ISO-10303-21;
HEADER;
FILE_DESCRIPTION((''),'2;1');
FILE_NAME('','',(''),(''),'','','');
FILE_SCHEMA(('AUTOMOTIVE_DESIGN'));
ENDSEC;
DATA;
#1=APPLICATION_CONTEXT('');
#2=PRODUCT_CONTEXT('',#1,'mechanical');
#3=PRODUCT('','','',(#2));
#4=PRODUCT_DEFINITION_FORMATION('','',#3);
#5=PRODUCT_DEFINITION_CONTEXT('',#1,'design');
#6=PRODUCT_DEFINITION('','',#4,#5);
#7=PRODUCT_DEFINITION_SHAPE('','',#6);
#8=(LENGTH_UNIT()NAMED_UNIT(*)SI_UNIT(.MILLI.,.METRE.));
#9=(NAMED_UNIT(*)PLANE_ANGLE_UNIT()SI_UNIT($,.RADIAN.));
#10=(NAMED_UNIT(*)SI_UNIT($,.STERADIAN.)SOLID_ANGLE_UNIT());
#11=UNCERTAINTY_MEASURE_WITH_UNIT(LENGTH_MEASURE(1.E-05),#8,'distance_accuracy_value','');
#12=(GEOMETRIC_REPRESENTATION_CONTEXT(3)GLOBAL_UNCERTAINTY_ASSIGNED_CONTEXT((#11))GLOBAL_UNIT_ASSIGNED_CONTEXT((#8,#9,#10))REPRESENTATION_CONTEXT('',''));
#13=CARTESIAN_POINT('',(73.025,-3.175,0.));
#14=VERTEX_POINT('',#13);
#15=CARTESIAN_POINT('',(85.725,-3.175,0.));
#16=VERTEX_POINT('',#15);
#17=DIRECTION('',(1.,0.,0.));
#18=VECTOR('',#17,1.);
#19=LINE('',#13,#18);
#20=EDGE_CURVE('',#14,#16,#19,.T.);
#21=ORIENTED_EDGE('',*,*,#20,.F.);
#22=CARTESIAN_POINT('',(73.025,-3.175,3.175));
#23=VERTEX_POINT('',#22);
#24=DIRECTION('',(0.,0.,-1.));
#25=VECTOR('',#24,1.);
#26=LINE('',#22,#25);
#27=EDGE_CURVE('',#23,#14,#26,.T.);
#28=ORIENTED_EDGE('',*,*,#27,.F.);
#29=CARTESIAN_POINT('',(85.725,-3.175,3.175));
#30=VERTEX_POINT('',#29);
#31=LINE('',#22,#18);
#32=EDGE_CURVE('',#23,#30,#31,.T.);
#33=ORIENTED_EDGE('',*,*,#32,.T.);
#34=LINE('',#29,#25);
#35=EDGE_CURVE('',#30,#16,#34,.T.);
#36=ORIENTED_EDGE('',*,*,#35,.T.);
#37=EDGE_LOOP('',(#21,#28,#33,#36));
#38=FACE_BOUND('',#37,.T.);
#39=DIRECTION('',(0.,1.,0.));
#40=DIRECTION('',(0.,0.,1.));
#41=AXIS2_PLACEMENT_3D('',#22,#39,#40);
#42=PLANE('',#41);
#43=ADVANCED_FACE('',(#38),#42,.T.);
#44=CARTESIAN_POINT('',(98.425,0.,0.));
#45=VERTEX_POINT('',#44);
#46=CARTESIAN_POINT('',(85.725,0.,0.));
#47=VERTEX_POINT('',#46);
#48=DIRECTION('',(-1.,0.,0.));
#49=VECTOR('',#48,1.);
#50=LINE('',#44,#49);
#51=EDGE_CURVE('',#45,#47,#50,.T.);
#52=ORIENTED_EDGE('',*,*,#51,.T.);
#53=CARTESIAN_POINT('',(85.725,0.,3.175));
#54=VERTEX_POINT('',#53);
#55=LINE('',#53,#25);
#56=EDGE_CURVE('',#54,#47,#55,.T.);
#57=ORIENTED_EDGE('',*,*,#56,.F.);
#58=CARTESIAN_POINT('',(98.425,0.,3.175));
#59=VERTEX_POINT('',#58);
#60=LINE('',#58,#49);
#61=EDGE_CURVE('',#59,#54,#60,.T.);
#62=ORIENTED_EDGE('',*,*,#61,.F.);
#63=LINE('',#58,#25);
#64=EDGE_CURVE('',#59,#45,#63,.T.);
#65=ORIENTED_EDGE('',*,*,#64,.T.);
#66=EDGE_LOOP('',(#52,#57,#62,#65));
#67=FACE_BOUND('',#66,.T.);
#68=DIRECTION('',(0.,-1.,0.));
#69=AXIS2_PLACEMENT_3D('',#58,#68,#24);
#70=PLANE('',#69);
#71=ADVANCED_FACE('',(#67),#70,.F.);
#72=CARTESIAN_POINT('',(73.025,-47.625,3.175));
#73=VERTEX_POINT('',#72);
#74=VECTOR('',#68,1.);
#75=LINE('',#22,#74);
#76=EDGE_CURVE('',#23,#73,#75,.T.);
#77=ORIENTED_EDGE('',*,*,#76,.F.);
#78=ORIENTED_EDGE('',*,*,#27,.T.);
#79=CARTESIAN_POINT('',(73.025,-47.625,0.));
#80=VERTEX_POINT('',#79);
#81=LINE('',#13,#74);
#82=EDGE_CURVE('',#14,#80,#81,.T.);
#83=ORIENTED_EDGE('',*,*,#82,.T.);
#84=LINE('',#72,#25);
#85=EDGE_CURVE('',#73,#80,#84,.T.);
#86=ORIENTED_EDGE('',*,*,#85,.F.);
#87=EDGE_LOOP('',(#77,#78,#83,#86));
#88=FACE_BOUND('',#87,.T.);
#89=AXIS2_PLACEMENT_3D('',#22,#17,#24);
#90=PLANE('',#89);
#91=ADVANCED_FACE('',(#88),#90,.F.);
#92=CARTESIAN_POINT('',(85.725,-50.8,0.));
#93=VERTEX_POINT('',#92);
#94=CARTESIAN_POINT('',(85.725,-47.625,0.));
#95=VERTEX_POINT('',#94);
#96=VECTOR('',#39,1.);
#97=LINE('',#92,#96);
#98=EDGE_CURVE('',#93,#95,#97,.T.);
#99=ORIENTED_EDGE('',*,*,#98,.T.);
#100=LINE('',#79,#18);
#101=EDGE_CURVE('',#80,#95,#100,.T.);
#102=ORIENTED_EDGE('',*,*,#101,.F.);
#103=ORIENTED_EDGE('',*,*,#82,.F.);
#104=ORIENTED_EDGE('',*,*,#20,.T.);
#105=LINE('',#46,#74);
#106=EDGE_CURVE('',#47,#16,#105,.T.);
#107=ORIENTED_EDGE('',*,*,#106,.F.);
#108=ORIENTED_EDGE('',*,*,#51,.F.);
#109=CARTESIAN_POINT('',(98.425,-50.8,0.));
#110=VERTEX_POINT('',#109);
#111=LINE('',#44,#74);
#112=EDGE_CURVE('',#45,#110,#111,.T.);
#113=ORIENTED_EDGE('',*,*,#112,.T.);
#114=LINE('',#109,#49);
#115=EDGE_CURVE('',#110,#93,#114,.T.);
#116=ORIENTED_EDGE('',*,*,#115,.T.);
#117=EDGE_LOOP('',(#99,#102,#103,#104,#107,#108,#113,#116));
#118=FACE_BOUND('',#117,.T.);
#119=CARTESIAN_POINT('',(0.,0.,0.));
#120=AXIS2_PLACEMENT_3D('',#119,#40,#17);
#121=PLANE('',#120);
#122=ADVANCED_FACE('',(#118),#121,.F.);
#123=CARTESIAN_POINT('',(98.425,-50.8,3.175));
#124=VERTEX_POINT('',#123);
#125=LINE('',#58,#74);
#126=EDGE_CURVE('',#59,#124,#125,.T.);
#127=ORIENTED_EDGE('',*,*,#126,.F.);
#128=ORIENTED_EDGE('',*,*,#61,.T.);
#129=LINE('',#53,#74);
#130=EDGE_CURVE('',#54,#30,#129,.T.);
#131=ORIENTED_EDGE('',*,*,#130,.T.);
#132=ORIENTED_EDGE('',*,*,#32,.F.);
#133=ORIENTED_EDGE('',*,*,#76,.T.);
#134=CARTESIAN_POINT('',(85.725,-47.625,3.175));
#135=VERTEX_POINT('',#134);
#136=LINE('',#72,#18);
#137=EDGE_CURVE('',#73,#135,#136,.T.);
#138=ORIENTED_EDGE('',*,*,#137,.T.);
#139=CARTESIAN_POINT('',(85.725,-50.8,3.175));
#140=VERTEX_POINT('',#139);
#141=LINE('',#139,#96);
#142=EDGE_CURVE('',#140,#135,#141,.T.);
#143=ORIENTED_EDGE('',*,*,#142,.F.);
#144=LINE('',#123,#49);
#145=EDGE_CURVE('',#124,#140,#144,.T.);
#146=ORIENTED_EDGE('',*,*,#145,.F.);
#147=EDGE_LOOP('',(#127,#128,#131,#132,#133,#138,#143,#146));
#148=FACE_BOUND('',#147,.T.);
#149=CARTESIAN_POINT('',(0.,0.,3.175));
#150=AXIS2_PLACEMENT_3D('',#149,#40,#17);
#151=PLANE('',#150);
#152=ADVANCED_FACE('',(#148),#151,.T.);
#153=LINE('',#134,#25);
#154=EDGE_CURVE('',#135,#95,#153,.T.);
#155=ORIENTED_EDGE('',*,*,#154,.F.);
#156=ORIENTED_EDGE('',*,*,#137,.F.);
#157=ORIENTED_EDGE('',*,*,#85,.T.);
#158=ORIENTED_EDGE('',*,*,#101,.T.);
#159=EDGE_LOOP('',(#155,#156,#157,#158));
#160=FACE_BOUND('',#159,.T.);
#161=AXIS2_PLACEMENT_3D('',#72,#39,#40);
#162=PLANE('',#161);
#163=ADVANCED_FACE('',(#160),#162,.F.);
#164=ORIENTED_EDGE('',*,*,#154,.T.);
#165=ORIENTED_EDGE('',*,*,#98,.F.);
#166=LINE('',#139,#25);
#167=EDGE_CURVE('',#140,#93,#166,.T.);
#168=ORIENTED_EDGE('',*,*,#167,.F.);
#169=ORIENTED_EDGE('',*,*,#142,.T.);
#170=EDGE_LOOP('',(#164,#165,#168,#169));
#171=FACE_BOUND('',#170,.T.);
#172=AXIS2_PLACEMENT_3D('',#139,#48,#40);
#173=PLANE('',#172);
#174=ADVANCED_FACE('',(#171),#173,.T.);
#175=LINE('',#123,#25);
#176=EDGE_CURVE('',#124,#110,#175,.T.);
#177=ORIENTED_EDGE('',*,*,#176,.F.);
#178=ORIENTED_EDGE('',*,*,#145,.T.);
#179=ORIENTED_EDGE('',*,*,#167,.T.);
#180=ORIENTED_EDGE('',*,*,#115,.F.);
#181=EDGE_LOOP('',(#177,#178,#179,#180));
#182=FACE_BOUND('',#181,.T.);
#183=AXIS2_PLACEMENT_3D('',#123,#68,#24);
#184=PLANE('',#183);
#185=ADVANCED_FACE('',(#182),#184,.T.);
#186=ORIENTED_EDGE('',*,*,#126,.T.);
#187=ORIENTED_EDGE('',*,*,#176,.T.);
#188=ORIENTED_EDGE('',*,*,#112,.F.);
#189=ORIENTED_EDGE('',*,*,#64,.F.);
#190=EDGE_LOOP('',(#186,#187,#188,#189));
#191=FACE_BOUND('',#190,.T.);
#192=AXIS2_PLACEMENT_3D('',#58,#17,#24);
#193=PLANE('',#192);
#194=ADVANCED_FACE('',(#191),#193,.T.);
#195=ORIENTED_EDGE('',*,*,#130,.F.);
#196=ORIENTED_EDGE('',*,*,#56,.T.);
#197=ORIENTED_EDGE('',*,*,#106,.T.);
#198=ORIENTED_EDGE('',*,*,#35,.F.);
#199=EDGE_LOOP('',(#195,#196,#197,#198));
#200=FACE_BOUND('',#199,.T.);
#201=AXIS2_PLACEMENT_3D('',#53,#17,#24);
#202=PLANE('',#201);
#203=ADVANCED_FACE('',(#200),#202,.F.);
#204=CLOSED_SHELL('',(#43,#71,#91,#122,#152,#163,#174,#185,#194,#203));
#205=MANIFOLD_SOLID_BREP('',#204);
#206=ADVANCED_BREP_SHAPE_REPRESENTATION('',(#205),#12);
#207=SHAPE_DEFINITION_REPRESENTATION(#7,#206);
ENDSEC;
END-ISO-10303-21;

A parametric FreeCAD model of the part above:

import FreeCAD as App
import Part
import Sketcher
Q = App.Units.Quantity

doc = App.newDocument("Part")
body = doc.addObject("PartDesign::Body", "Body")

# Sketch on XY plane
sketch1 = doc.addObject("Sketcher::SketchObject", "Sketch")
body.addObject(sketch1)
sketch1.AttachmentSupport = (doc.XY_Plane, [""])
sketch1.MapMode = "FlatFace"
sketch1.addGeometry(Part.LineSegment(App.Vector(98.4, 0, 0), App.Vector(85.7, 0, 0)), False)
sketch1.addGeometry(Part.LineSegment(App.Vector(85.7, 0, 0), App.Vector(85.7, -3.2, 0)), False)
sketch1.addGeometry(Part.LineSegment(App.Vector(85.7, -3.2, 0), App.Vector(73, -3.2, 0)), False)
sketch1.addGeometry(Part.LineSegment(App.Vector(73, -3.2, 0), App.Vector(73, -47.6, 0)), False)
sketch1.addGeometry(Part.LineSegment(App.Vector(73, -47.6, 0), App.Vector(85.7, -47.6, 0)), False)
sketch1.addGeometry(Part.LineSegment(App.Vector(85.7, -47.6, 0), App.Vector(85.7, -50.8, 0)), False)
sketch1.addGeometry(Part.LineSegment(App.Vector(85.7, -50.8, 0), App.Vector(98.4, -50.8, 0)), False)
sketch1.addGeometry(Part.LineSegment(App.Vector(98.4, -50.8, 0), App.Vector(98.4, 0, 0)), False)
sketch1.addConstraint(Sketcher.Constraint("Coincident", 0, 2, 1, 1))
sketch1.addConstraint(Sketcher.Constraint("Coincident", 1, 2, 2, 1))
sketch1.addConstraint(Sketcher.Constraint("Coincident", 2, 2, 3, 1))
sketch1.addConstraint(Sketcher.Constraint("Coincident", 3, 2, 4, 1))
sketch1.addConstraint(Sketcher.Constraint("Coincident", 4, 2, 5, 1))
sketch1.addConstraint(Sketcher.Constraint("Coincident", 5, 2, 6, 1))
sketch1.addConstraint(Sketcher.Constraint("Coincident", 6, 2, 7, 1))
sketch1.addConstraint(Sketcher.Constraint("Coincident", 7, 2, 0, 1))
sketch1.addConstraint(Sketcher.Constraint("Horizontal", 0))
sketch1.addConstraint(Sketcher.Constraint("Vertical", 1))
sketch1.addConstraint(Sketcher.Constraint("Horizontal", 2))
sketch1.addConstraint(Sketcher.Constraint("Vertical", 3))
sketch1.addConstraint(Sketcher.Constraint("Horizontal", 4))
sketch1.addConstraint(Sketcher.Constraint("Vertical", 5))
sketch1.addConstraint(Sketcher.Constraint("Horizontal", 6))
sketch1.addConstraint(Sketcher.Constraint("Vertical", 7))
sketch1.addConstraint(Sketcher.Constraint("PointOnObject", 0, 2, -1))
sketch1.addConstraint(Sketcher.Constraint("Vertical", 1, 2, 4, 2))
sketch1.addConstraint(Sketcher.Constraint("Equal", 0, 2))
sketch1.addConstraint(Sketcher.Constraint("Equal", 1, 5))
sketch1.addConstraint(Sketcher.Constraint("DistanceY", 7, 1, 7, 2, Q("2 in")))
sketch1.addConstraint(Sketcher.Constraint("DistanceX", 0, 2, 0, 1, Q("0.5 in")))
sketch1.addConstraint(Sketcher.Constraint("DistanceY", 3, 2, 3, 1, Q("1.75 in")))
sketch1.addConstraint(Sketcher.Constraint("DistanceX", -1, 1, 0, 2, Q("3.375 in")))
pad1 = doc.addObject("PartDesign::Pad", "Pad")
body.addObject(pad1)
pad1.Profile = sketch1
pad1.Length = Q("0.125 in")

doc.recompute()
